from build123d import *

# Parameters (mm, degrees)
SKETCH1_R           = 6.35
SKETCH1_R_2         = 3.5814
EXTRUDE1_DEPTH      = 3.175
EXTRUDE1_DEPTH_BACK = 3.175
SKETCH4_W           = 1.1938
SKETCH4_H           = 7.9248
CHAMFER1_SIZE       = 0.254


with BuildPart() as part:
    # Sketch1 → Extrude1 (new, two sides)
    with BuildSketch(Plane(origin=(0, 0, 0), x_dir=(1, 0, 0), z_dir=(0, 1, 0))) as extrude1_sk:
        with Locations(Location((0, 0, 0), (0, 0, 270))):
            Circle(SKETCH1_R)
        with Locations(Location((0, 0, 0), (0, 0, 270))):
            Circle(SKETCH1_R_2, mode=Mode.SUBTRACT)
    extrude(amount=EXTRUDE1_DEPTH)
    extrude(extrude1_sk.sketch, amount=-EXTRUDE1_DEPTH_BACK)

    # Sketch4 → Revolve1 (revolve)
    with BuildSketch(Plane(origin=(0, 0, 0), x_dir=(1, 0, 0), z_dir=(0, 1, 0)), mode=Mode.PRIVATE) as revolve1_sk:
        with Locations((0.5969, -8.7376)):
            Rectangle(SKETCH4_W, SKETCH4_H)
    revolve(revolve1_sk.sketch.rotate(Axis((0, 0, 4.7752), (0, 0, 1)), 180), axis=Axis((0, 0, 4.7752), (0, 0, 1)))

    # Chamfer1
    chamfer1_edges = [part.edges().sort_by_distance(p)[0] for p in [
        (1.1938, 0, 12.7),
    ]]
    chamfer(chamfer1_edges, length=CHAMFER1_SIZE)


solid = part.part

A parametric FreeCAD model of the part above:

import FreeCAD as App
import Part
import Sketcher
from FreeCAD import Vector
Q = App.Units.Quantity


def edges_at(feature, points):
    """Names of the edges that pass closest to the given points."""
    edges = feature.Shape.Edges
    near = lambda p: min(range(len(edges)), key=lambda i: edges[i].distToShape(Part.Vertex(*p))[0])
    return sorted({f"Edge{near(p) + 1}" for p in points})

doc = App.newDocument("Part")
params = doc.addObject("Spreadsheet::Sheet", "Params")
for row, (alias, value) in enumerate([
    ("sketch1_diameter", "0.5 in"),
    ("sketch1_diameter2", "0.282 in"),
    ("pad1_length", "0.125 in"),
    ("pad1_length2", "0.125 in"),
    ("sketch2_width", "0.047 in"),
    ("sketch2_height", "0.312 in"),
    ("revolution_angle", "360 deg"),
    ("chamfer_size", "0.01 in"),
], start=1):
    params.set(f"A{row}", alias)
    params.set(f"B{row}", "=" + value)
    params.setAlias(f"B{row}", alias)

body = doc.addObject("PartDesign::Body", "Body")

# Sketch on XZ plane
sketch1 = body.newObject("Sketcher::SketchObject", "Sketch")
sketch1.AttachmentSupport = (doc.getObject("XZ_Plane"), [""])
sketch1.MapMode = "FlatFace"
sketch1.addGeometry(Part.Circle(Vector(0, 0, 0), Vector(0, 0, 1), 6.3), False)
sketch1.addGeometry(Part.Circle(Vector(0, 0, 0), Vector(0, 0, 1), 3.6), False)
sketch1.addConstraint(Sketcher.Constraint("Coincident", 0, 3, -1, 1))
sketch1.addConstraint(Sketcher.Constraint("Coincident", 1, 3, -1, 1))
sketch1.addConstraint(Sketcher.Constraint("Diameter", 0, Q("0.5 in")))
sketch1.addConstraint(Sketcher.Constraint("Diameter", 1, Q("0.282 in")))
sketch1.setExpression("Constraints[2]", "Params.sketch1_diameter")
sketch1.setExpression("Constraints[3]", "Params.sketch1_diameter2")
pad1 = body.newObject("PartDesign::Pad", "Pad")
pad1.Profile = sketch1
pad1.Type = "TwoLengths"
pad1.setExpression("Length", "Params.pad1_length")
pad1.setExpression("Length2", "Params.pad1_length2")
pad1.Reversed = True

# Sketch on XZ plane
sketch2 = body.newObject("Sketcher::SketchObject", "Sketch001")
sketch2.AttachmentSupport = (doc.getObject("XZ_Plane"), [""])
sketch2.MapMode = "FlatFace"
sketch2.addGeometry(Part.LineSegment(Vector(0, 4.8, 0), Vector(0, 12.7, 0)), False)
sketch2.addGeometry(Part.LineSegment(Vector(0, 12.7, 0), Vector(1.2, 12.7, 0)), False)
sketch2.addGeometry(Part.LineSegment(Vector(1.2, 12.7, 0), Vector(1.2, 4.8, 0)), False)
sketch2.addGeometry(Part.LineSegment(Vector(1.2, 4.8, 0), Vector(0, 4.8, 0)), False)
sketch2.addConstraint(Sketcher.Constraint("Coincident", 0, 2, 1, 1))
sketch2.addConstraint(Sketcher.Constraint("Coincident", 1, 2, 2, 1))
sketch2.addConstraint(Sketcher.Constraint("Coincident", 2, 2, 3, 1))
sketch2.addConstraint(Sketcher.Constraint("Coincident", 3, 2, 0, 1))
sketch2.addConstraint(Sketcher.Constraint("Vertical", 0))
sketch2.addConstraint(Sketcher.Constraint("Horizontal", 1))
sketch2.addConstraint(Sketcher.Constraint("Vertical", 2))
sketch2.addConstraint(Sketcher.Constraint("Horizontal", 3))
sketch2.addConstraint(Sketcher.Constraint("PointOnObject", 0, 2, -2))
sketch2.addConstraint(Sketcher.Constraint("DistanceY", -1, 1, 0, 2, Q("0.5 in")))
sketch2.addConstraint(Sketcher.Constraint("DistanceX", 1, 1, 1, 2, Q("0.047 in")))
sketch2.addConstraint(Sketcher.Constraint("DistanceY", 0, 1, 0, 2, Q("0.312 in")))
sketch2.setExpression("Constraints[10]", "Params.sketch2_width")
sketch2.setExpression("Constraints[11]", "Params.sketch2_height")
revolution = body.newObject("PartDesign::Revolution", "Revolution")
revolution.Profile = sketch2
revolution.ReferenceAxis = (sketch2, ["V_Axis"])
revolution.setExpression("Angle", "Params.revolution_angle")
doc.recompute()

chamfer = body.newObject("PartDesign::Chamfer", "Chamfer")
chamfer.Base = (revolution, edges_at(revolution, [(1.194, 0, 12.7)]))
chamfer.setExpression("Size", "Params.chamfer_size")

doc.recompute()
